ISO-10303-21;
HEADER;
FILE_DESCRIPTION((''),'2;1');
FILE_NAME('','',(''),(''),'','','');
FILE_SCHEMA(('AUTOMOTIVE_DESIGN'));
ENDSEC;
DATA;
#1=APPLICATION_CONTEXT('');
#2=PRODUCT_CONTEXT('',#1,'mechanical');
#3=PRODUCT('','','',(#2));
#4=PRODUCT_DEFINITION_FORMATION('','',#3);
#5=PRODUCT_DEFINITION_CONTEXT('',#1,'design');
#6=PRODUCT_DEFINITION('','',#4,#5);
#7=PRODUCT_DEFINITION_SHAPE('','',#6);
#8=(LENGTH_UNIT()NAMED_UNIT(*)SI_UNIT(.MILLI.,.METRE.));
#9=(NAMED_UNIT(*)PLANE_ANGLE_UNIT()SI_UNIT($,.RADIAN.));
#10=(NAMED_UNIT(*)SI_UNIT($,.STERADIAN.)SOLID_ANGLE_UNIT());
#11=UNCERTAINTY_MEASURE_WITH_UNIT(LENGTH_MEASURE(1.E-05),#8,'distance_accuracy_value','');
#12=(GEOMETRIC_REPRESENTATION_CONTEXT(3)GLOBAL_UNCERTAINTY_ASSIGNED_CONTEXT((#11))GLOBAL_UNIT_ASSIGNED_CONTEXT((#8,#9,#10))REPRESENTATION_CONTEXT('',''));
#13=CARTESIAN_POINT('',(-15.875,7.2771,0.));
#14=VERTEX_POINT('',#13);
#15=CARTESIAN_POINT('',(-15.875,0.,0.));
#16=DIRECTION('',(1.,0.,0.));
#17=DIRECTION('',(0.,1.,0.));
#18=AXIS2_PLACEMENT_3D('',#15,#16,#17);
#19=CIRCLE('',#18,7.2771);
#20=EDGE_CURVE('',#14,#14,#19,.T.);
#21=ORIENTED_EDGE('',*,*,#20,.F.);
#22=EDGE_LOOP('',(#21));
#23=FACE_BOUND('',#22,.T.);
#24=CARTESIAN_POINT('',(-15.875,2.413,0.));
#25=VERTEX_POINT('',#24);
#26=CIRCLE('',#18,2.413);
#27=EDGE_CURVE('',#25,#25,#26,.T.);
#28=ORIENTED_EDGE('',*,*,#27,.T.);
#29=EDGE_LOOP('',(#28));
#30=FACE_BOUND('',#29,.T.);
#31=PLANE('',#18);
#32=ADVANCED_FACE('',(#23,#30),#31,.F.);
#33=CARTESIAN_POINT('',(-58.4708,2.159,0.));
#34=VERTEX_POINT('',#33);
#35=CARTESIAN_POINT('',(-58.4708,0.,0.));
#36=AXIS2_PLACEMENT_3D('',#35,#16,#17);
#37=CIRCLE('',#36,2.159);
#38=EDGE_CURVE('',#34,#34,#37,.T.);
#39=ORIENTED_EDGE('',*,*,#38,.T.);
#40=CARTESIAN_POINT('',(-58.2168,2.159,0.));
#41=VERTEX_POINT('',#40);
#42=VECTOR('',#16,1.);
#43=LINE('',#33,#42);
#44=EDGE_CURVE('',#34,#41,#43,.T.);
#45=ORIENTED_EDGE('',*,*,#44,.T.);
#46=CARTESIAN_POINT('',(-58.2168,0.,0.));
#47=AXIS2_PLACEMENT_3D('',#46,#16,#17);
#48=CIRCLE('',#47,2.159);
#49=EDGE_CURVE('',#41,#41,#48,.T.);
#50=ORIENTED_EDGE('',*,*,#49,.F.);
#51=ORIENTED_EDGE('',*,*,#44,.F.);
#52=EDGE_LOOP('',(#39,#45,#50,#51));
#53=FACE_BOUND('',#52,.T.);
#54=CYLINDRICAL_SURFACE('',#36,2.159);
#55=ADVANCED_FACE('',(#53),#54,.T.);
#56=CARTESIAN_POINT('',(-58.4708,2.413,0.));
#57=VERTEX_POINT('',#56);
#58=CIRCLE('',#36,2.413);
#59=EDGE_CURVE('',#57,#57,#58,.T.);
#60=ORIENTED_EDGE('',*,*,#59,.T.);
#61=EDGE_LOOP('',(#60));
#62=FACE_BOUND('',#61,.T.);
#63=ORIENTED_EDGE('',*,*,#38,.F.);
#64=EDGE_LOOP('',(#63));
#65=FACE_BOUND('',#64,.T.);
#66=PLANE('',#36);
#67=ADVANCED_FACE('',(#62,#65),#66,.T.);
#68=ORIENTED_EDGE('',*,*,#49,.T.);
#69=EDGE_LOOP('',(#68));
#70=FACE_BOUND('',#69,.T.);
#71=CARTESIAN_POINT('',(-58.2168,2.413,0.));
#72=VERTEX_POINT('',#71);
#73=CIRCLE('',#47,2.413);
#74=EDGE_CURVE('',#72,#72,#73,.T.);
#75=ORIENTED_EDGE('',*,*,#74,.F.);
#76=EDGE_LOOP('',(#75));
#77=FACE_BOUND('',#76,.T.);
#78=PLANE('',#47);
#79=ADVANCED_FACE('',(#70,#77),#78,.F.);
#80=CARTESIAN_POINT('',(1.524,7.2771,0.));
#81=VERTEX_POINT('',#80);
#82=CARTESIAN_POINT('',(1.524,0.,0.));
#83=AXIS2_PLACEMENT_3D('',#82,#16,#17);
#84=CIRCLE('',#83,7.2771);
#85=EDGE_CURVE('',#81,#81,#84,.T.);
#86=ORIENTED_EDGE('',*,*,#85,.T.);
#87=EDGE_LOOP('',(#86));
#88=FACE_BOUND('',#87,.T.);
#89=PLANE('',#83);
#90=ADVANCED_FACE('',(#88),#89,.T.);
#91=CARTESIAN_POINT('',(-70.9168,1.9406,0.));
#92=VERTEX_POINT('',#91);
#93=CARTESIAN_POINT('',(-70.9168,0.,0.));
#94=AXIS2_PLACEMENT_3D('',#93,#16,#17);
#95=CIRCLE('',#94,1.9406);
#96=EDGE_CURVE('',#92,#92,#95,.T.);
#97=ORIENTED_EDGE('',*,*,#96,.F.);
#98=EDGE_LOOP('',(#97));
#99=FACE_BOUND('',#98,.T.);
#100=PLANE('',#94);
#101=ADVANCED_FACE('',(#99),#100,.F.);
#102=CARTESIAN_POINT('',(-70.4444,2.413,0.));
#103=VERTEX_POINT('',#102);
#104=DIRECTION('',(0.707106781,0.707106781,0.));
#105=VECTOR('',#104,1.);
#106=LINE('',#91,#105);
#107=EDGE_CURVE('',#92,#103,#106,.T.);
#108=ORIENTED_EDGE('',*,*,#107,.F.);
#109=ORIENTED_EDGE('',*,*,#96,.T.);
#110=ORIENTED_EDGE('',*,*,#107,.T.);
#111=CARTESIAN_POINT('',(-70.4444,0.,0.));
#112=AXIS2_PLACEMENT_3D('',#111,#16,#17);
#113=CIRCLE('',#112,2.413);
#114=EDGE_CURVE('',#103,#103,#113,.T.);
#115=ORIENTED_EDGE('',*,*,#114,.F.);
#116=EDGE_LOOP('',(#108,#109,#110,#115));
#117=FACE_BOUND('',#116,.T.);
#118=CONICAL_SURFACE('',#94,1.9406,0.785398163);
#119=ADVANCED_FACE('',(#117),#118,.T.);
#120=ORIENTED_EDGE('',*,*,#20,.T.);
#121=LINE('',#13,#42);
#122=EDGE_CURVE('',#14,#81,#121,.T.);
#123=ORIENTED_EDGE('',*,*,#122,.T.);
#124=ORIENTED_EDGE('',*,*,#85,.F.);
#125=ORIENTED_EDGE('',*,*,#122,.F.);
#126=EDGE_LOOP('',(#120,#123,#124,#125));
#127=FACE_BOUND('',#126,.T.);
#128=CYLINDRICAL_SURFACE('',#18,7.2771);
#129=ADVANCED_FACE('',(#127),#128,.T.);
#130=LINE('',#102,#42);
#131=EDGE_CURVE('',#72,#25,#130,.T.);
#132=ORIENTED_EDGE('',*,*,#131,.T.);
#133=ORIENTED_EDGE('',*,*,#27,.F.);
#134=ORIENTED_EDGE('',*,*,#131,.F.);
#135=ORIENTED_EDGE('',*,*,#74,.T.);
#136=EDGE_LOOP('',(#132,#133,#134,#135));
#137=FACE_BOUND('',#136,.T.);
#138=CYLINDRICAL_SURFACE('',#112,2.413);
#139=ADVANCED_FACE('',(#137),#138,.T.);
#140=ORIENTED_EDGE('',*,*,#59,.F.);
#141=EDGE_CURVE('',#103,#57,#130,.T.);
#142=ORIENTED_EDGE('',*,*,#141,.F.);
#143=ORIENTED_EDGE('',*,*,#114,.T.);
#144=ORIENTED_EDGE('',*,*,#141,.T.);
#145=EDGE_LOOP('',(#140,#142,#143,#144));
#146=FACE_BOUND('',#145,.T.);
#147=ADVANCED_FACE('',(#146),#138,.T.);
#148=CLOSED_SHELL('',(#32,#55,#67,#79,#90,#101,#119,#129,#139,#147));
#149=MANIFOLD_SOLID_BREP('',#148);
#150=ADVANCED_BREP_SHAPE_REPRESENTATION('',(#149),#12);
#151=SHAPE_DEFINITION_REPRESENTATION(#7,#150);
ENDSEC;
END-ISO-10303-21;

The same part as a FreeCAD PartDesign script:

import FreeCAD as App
import Part
import Sketcher
Q = App.Units.Quantity


def add_polygon(sketch, points):
    """Adds a closed chain of lines whose ends are joined by coincident constraints."""
    first, n = sketch.GeometryCount, len(points)
    for a, b in zip(points, points[1:] + points[:1]):
        sketch.addGeometry(Part.LineSegment(App.Vector(*a, 0), App.Vector(*b, 0)), False)
    for i in range(n):
        sketch.addConstraint(Sketcher.Constraint("Coincident", first + i, 2, first + (i + 1) % n, 1))

doc = App.newDocument("Part")
body = doc.addObject("PartDesign::Body", "Body")

# Sketch on XY plane
sketch1 = body.newObject("Sketcher::SketchObject", "Sketch")
sketch1.AttachmentSupport = (doc.getObject("XY_Plane"), [""])
sketch1.MapMode = "FlatFace"
add_polygon(sketch1, [(-70.9168, 0), (0, 0), (0, 2.413), (-70.4444, 2.413), (-70.9168, 1.9406)])  # lines 0-4
sketch1.addConstraint(Sketcher.Constraint("Horizontal", 0))
sketch1.addConstraint(Sketcher.Constraint("Vertical", 1))
sketch1.addConstraint(Sketcher.Constraint("Horizontal", 2))
sketch1.addConstraint(Sketcher.Constraint("Vertical", 4))
sketch1.addConstraint(Sketcher.Constraint("Coincident", 0, 2, -1, 1))
sketch1.addConstraint(Sketcher.Constraint("Angle", 3, Q("-135 deg")))
sketch1.addConstraint(Sketcher.Constraint("DistanceX", 0, 1, 0, 2, Q("2.792 in")))
sketch1.addConstraint(Sketcher.Constraint("DistanceY", 1, 1, 1, 2, Q("0.095 in")))
sketch1.addConstraint(Sketcher.Constraint("DistanceX", 2, 2, 2, 1, Q("2.7734 in")))
revolution = body.newObject("PartDesign::Revolution", "Revolution")
revolution.Profile = sketch1
revolution.ReferenceAxis = (sketch1, ["H_Axis"])
revolution.Angle = 360

# Sketch on XY plane
sketch2 = body.newObject("Sketcher::SketchObject", "Sketch001")
sketch2.AttachmentSupport = (doc.getObject("XY_Plane"), [""])
sketch2.MapMode = "FlatFace"
add_polygon(sketch2, [(-58.2168, 2.413), (-58.4708, 2.413), (-58.4708, 2.159), (-58.2168, 2.159)])  # lines 0-3
sketch2.addConstraint(Sketcher.Constraint("Horizontal", 0))
sketch2.addConstraint(Sketcher.Constraint("Vertical", 1))
sketch2.addConstraint(Sketcher.Constraint("Horizontal", 2))
sketch2.addConstraint(Sketcher.Constraint("Vertical", 3))
sketch2.addConstraint(Sketcher.Constraint("Equal", 2, 1))
sketch2.addConstraint(Sketcher.Constraint("DistanceX", 0, 2, 0, 1, Q("0.01 in")))
sketch2.addConstraint(Sketcher.Constraint("DistanceX", 0, 2, -1, 1, Q("2.302 in")))
sketch2.addConstraint(Sketcher.Constraint("DistanceY", -1, 1, 0, 2, Q("0.095 in")))
groove = body.newObject("PartDesign::Groove", "Groove")
groove.Profile = sketch2
groove.ReferenceAxis = (sketch2, ["H_Axis"])
groove.Angle = 360

# Sketch on XY plane
sketch3 = body.newObject("Sketcher::SketchObject", "Sketch002")
sketch3.AttachmentSupport = (doc.getObject("XY_Plane"), [""])
sketch3.MapMode = "FlatFace"
add_polygon(sketch3, [(-15.875, 0), (1.524, 0), (1.524, 7.2771), (-15.875, 7.2771)])  # lines 0-3
sketch3.addConstraint(Sketcher.Constraint("Horizontal", 0))
sketch3.addConstraint(Sketcher.Constraint("Vertical", 1))
sketch3.addConstraint(Sketcher.Constraint("Horizontal", 2))
sketch3.addConstraint(Sketcher.Constraint("Vertical", 3))
sketch3.addConstraint(Sketcher.Constraint("PointOnObject", 0, 2, -1))
sketch3.addConstraint(Sketcher.Constraint("DistanceX", 0, 1, 0, 2, Q("0.685 in")))
sketch3.addConstraint(Sketcher.Constraint("DistanceX", -1, 1, 0, 2, Q("0.06 in")))
sketch3.addConstraint(Sketcher.Constraint("DistanceY", 1, 1, 1, 2, Q("0.2865 in")))
revolution2 = body.newObject("PartDesign::Revolution", "Revolution001")
revolution2.Profile = sketch3
revolution2.ReferenceAxis = (sketch3, ["H_Axis"])
revolution2.Angle = 360

doc.recompute()
